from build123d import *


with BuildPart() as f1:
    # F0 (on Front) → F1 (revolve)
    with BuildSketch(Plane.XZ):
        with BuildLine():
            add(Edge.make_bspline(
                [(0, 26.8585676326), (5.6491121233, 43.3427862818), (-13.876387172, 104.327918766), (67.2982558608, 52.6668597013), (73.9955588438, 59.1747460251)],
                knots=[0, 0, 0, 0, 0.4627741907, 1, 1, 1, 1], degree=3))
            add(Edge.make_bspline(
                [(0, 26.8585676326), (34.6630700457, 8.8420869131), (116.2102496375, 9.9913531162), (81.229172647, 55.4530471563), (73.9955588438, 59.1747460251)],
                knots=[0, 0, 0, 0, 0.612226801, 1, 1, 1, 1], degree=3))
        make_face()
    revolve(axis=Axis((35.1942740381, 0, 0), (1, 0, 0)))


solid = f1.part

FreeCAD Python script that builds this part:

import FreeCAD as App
import Part
import Sketcher

doc = App.newDocument("Part")
body = doc.addObject("PartDesign::Body", "Body")

sketch1 = body.newObject("Sketcher::SketchObject", "Sketch")
sketch1.AttachmentSupport = (doc.getObject("XZ_Plane"), [""])
sketch1.MapMode = "FlatFace"
sketch1.addGeometry(Part.BSplineCurve([App.Vector(0, 26.858568, 0), App.Vector(5.649112, 43.342786, 0), App.Vector(-13.876387, 104.327919, 0), App.Vector(67.298256, 52.66686, 0), App.Vector(73.995559, 59.174746, 0)], [4, 1, 4], [0, 0.462774191, 1], False, 3, [1, 1, 1, 1, 1], False), False)
sketch1.addGeometry(Part.BSplineCurve([App.Vector(0, 26.858568, 0), App.Vector(34.66307, 8.842087, 0), App.Vector(116.21025, 9.991353, 0), App.Vector(81.229173, 55.453047, 0), App.Vector(73.995559, 59.174746, 0)], [4, 1, 4], [0, 0.612226801, 1], False, 3, [1, 1, 1, 1, 1], False), False)
sketch1.addConstraint(Sketcher.Constraint("Block", 0))
sketch1.addConstraint(Sketcher.Constraint("Block", 1))
revolution = body.newObject("PartDesign::Revolution", "Revolution")
revolution.Profile = sketch1
revolution.ReferenceAxis = (sketch1, ["H_Axis"])
revolution.Angle = 360

doc.recompute()
